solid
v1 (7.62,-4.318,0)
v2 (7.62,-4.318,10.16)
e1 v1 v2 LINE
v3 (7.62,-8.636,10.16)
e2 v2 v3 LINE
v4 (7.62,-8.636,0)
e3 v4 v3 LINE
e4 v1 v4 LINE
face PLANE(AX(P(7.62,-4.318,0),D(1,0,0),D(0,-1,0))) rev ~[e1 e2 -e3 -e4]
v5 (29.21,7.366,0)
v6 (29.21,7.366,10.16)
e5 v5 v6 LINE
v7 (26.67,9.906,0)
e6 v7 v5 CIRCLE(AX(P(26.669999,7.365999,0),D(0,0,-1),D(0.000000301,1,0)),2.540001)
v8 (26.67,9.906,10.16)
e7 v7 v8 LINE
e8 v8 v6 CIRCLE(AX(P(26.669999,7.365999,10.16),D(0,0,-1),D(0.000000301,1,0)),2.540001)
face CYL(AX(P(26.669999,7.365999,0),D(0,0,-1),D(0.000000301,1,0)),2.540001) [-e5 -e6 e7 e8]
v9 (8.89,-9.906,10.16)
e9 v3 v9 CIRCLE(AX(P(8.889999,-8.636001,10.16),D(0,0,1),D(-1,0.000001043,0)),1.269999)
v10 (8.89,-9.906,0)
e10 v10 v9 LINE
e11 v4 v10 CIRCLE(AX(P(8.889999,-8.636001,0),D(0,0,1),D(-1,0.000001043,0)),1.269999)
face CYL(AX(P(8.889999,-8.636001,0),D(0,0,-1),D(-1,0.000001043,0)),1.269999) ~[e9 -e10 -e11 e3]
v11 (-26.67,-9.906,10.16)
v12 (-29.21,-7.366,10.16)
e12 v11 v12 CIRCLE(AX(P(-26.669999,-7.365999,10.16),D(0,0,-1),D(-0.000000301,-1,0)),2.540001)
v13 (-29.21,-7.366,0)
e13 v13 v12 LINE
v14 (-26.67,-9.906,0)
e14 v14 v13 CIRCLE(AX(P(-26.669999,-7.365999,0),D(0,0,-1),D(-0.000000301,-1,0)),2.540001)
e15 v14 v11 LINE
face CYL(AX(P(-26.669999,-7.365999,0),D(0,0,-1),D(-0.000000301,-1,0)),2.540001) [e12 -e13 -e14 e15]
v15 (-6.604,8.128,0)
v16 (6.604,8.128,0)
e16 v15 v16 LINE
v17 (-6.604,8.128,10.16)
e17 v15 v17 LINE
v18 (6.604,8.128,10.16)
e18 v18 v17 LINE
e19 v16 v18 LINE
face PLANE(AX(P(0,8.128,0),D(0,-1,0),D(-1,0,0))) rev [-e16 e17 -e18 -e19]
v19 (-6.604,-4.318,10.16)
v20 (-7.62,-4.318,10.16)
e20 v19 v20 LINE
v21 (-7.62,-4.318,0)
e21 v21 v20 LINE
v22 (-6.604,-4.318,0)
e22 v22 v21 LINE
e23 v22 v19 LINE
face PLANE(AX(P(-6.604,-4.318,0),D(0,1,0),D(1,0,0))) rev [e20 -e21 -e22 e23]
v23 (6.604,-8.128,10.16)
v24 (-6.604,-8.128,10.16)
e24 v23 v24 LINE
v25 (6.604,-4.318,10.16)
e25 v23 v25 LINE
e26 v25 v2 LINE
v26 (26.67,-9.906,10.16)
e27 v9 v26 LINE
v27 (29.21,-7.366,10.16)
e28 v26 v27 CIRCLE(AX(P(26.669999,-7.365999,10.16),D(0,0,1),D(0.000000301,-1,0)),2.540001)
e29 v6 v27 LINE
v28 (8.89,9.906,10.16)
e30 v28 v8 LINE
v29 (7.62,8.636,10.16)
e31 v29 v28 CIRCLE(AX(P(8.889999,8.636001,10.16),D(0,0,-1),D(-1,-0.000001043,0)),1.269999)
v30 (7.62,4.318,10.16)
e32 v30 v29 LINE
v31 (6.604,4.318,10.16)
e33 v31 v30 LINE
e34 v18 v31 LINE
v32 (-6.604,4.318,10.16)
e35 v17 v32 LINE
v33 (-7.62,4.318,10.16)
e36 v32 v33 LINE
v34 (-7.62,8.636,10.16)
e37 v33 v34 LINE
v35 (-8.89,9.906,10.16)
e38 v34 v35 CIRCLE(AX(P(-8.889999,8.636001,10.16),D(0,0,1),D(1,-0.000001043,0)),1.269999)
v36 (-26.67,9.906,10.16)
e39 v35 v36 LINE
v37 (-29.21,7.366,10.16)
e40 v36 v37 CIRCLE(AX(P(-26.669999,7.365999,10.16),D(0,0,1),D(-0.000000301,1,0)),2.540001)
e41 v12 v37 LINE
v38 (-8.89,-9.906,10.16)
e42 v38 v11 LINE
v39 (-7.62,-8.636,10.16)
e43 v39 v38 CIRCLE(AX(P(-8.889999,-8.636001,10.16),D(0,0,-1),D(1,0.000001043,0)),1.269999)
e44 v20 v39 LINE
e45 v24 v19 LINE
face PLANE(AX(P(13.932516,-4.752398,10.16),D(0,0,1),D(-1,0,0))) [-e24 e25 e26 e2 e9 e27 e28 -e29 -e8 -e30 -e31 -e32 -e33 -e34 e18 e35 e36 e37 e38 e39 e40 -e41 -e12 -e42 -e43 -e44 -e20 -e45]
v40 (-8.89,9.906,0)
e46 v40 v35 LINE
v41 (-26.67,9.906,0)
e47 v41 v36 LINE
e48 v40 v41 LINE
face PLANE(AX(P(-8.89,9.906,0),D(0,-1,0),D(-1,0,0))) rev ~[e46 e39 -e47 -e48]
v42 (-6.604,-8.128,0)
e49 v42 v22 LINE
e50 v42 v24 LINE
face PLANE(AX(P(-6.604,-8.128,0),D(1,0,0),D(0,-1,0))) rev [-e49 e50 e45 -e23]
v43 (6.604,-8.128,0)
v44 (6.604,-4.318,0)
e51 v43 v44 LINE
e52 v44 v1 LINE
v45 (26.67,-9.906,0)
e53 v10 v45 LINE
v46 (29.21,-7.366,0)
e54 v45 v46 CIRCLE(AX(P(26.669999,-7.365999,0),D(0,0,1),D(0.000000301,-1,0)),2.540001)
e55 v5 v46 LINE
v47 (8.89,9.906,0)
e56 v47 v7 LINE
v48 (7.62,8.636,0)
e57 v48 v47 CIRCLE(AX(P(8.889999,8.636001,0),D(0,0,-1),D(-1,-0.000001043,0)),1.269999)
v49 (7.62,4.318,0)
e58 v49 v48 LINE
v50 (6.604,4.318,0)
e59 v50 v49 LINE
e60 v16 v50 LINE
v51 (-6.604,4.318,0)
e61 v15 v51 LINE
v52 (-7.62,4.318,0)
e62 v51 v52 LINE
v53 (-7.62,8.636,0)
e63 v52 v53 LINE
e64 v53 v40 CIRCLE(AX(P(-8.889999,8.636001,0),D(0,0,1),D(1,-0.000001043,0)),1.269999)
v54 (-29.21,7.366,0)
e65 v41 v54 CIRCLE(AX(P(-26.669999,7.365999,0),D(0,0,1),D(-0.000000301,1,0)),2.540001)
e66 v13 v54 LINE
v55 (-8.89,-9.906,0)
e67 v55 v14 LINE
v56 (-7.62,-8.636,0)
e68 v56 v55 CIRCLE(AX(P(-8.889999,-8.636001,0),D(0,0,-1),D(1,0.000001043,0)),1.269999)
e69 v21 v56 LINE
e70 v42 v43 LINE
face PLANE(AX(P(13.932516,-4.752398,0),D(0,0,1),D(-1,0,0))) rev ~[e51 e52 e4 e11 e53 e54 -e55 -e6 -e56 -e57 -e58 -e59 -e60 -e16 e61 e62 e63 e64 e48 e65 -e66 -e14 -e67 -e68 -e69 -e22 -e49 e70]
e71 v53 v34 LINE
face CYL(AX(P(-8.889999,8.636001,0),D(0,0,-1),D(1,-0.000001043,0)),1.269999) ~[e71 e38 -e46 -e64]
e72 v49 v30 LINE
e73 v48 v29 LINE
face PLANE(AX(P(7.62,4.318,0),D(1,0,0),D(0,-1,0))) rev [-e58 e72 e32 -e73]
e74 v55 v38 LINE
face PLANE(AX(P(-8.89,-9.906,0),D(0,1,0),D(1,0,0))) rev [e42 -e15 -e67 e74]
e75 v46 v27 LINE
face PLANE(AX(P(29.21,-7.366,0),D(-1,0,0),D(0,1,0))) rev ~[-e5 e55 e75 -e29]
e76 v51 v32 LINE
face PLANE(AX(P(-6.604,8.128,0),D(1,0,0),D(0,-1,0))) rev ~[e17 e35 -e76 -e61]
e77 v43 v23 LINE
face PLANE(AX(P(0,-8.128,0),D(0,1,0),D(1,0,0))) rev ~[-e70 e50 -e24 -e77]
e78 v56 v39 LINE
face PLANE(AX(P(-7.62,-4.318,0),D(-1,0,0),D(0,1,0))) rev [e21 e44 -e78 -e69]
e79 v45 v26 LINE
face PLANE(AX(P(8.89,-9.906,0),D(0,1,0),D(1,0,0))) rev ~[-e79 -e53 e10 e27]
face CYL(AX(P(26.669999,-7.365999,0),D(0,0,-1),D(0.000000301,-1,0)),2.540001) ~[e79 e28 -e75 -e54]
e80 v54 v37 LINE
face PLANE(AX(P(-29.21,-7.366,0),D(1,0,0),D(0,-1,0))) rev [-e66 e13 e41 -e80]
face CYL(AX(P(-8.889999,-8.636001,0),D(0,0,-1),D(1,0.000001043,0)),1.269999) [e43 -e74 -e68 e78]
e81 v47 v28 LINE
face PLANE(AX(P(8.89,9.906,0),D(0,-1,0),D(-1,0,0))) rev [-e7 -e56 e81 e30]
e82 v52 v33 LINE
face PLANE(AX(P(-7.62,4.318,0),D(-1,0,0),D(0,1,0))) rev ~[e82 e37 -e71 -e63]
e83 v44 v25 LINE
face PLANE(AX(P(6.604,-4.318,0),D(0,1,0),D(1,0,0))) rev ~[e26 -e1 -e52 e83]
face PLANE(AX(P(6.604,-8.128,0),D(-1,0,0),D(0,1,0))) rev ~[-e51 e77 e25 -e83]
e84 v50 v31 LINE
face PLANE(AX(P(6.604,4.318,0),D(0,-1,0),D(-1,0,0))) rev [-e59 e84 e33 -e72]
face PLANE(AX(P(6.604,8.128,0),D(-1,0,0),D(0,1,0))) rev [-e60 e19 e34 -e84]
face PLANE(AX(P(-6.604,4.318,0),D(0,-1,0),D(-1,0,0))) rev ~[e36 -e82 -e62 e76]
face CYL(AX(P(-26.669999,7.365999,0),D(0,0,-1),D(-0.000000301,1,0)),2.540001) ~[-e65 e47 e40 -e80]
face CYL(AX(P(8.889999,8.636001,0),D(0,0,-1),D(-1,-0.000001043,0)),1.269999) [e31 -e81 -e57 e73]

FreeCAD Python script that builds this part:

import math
import FreeCAD as App
import Part
import Sketcher

V = App.Vector
Q = App.Units.Quantity

doc = App.newDocument("Part")
params = doc.addObject("Spreadsheet::Sheet", "Params")
for row, (alias, value) in enumerate([
    ("sketch1_radius", "0.1 in"),
    ("sketch1_radius2", "0.0499999 in"),
    ("sketch1_width", "0.7 in"),
    ("sketch1_width2", "1.15 in"),
    ("sketch1_width3", "0.26 in"),
    ("pad1_length", "0.4 in"),
], start=1):
    params.set(f"A{row}", alias)
    params.set(f"B{row}", "=" + value)
    params.setAlias(f"B{row}", alias)

body = doc.addObject("PartDesign::Body", "Body")

# Sketch on XY plane
sketch1 = doc.addObject("Sketcher::SketchObject", "Sketch")
body.addObject(sketch1)
sketch1.AttachmentSupport = (doc.XY_Plane, [""])
sketch1.MapMode = "FlatFace"
sketch1.addGeometry([
    Part.LineSegment(V(-29.2, 0, 0), V(0, 0, 0)),  # 0
    Part.LineSegment(V(0, 0, 0), V(0, 8.1, 0)),  # 1
    Part.LineSegment(V(0, 8.1, 0), V(-6.6, 8.1, 0)),  # 2
    Part.LineSegment(V(-6.6, 8.1, 0), V(-6.6, 4.3, 0)),  # 3
    Part.LineSegment(V(-6.6, 4.3, 0), V(-7.6, 4.3, 0)),  # 4
    Part.LineSegment(V(-7.6, 4.3, 0), V(-7.6, 8.6, 0)),  # 5
    Part.ArcOfCircle(Part.Circle(V(-8.9, 8.6, 0), V(0, 0, 1), 1.3), math.radians(0), math.radians(90)),  # 6
    Part.LineSegment(V(-8.9, 9.9, 0), V(-26.7, 9.9, 0)),  # 7
    Part.ArcOfCircle(Part.Circle(V(-26.7, 7.4, 0), V(0, 0, 1), 2.5), math.radians(90), math.radians(180)),  # 8
    Part.LineSegment(V(-29.2, 7.4, 0), V(-29.2, 0, 0)),  # 9
], False)
sketch1.addConstraint([
    Sketcher.Constraint("Coincident", 0, 2, 1, 1),
    Sketcher.Constraint("Coincident", 1, 2, 2, 1),
    Sketcher.Constraint("Coincident", 2, 2, 3, 1),
    Sketcher.Constraint("Coincident", 3, 2, 4, 1),
    Sketcher.Constraint("Coincident", 4, 2, 5, 1),
    Sketcher.Constraint("Tangent", 5, 2, 6, 1),
    Sketcher.Constraint("Tangent", 6, 2, 7, 1),
    Sketcher.Constraint("Tangent", 7, 2, 8, 1),
    Sketcher.Constraint("Tangent", 8, 2, 9, 1),
    Sketcher.Constraint("Coincident", 9, 2, 0, 1),
    Sketcher.Constraint("Horizontal", 0),
    Sketcher.Constraint("Vertical", 1),
    Sketcher.Constraint("Horizontal", 2),
    Sketcher.Constraint("Vertical", 3),
    Sketcher.Constraint("Horizontal", 4),
    Sketcher.Constraint("Vertical", 5),
    Sketcher.Constraint("Horizontal", 7),
    Sketcher.Constraint("Vertical", 9),
    Sketcher.Constraint("Coincident", 0, 2, -1, 1),
    Sketcher.Constraint("Radius", 8, Q("0.1 in")),
    Sketcher.Constraint("Radius", 6, Q("0.0499999 in")),
    Sketcher.Constraint("DistanceX", 7, 2, 7, 1, Q("0.7 in")),
    Sketcher.Constraint("DistanceX", 0, 1, 0, 2, Q("1.15 in")),
    Sketcher.Constraint("DistanceX", 2, 2, 2, 1, Q("0.26 in")),
    Sketcher.Constraint("DistanceY", 1, 1, 1, 2, Q("0.32 in")),
    Sketcher.Constraint("DistanceY", 3, 2, 3, 1, Q("0.15 in")),
    Sketcher.Constraint("DistanceY", 5, 1, 5, 2, Q("0.17 in")),
])
sketch1.setExpression("Constraints[19]", "Params.sketch1_radius")
sketch1.setExpression("Constraints[20]", "Params.sketch1_radius2")
sketch1.setExpression("Constraints[21]", "Params.sketch1_width")
sketch1.setExpression("Constraints[22]", "Params.sketch1_width2")
sketch1.setExpression("Constraints[23]", "Params.sketch1_width3")
pad1 = doc.addObject("PartDesign::Pad", "Pad")
body.addObject(pad1)
pad1.Profile = sketch1
pad1.setExpression("Length", "Params.pad1_length")
body2 = doc.addObject("PartDesign::Body", "Body001")
doc.recompute()

body2.BaseFeature = body
doc.recompute()

mirroring = doc.addObject("Part::Mirroring", "Mirroring")
mirroring.Source = body
mirroring.Base = V(0, 4.064, 5.08)
mirroring.Normal = V(1, 0, 0)
body3 = doc.addObject("PartDesign::Body", "Body002")
body3.BaseFeature = mirroring
boolean = doc.addObject("PartDesign::Boolean", "Boolean")
body2.addObject(boolean)
boolean.Type = "Fuse"
boolean.addObjects([body3])
doc.recompute()
body4 = doc.addObject("PartDesign::Body", "Body003")
doc.recompute()

body4.BaseFeature = body2
doc.recompute()

mirroring2 = doc.addObject("Part::Mirroring", "Mirroring001")
mirroring2.Source = body2
mirroring2.Base = V(0, 0, 5.08)
mirroring2.Normal = V(0, -1, 0)
body5 = doc.addObject("PartDesign::Body", "Body004")
body5.BaseFeature = mirroring2
boolean2 = doc.addObject("PartDesign::Boolean", "Boolean001")
body4.addObject(boolean2)
boolean2.Type = "Fuse"
boolean2.addObjects([body5])
doc.recompute()
mirroring.Visibility = False
mirroring2.Visibility = False

doc.recompute()
